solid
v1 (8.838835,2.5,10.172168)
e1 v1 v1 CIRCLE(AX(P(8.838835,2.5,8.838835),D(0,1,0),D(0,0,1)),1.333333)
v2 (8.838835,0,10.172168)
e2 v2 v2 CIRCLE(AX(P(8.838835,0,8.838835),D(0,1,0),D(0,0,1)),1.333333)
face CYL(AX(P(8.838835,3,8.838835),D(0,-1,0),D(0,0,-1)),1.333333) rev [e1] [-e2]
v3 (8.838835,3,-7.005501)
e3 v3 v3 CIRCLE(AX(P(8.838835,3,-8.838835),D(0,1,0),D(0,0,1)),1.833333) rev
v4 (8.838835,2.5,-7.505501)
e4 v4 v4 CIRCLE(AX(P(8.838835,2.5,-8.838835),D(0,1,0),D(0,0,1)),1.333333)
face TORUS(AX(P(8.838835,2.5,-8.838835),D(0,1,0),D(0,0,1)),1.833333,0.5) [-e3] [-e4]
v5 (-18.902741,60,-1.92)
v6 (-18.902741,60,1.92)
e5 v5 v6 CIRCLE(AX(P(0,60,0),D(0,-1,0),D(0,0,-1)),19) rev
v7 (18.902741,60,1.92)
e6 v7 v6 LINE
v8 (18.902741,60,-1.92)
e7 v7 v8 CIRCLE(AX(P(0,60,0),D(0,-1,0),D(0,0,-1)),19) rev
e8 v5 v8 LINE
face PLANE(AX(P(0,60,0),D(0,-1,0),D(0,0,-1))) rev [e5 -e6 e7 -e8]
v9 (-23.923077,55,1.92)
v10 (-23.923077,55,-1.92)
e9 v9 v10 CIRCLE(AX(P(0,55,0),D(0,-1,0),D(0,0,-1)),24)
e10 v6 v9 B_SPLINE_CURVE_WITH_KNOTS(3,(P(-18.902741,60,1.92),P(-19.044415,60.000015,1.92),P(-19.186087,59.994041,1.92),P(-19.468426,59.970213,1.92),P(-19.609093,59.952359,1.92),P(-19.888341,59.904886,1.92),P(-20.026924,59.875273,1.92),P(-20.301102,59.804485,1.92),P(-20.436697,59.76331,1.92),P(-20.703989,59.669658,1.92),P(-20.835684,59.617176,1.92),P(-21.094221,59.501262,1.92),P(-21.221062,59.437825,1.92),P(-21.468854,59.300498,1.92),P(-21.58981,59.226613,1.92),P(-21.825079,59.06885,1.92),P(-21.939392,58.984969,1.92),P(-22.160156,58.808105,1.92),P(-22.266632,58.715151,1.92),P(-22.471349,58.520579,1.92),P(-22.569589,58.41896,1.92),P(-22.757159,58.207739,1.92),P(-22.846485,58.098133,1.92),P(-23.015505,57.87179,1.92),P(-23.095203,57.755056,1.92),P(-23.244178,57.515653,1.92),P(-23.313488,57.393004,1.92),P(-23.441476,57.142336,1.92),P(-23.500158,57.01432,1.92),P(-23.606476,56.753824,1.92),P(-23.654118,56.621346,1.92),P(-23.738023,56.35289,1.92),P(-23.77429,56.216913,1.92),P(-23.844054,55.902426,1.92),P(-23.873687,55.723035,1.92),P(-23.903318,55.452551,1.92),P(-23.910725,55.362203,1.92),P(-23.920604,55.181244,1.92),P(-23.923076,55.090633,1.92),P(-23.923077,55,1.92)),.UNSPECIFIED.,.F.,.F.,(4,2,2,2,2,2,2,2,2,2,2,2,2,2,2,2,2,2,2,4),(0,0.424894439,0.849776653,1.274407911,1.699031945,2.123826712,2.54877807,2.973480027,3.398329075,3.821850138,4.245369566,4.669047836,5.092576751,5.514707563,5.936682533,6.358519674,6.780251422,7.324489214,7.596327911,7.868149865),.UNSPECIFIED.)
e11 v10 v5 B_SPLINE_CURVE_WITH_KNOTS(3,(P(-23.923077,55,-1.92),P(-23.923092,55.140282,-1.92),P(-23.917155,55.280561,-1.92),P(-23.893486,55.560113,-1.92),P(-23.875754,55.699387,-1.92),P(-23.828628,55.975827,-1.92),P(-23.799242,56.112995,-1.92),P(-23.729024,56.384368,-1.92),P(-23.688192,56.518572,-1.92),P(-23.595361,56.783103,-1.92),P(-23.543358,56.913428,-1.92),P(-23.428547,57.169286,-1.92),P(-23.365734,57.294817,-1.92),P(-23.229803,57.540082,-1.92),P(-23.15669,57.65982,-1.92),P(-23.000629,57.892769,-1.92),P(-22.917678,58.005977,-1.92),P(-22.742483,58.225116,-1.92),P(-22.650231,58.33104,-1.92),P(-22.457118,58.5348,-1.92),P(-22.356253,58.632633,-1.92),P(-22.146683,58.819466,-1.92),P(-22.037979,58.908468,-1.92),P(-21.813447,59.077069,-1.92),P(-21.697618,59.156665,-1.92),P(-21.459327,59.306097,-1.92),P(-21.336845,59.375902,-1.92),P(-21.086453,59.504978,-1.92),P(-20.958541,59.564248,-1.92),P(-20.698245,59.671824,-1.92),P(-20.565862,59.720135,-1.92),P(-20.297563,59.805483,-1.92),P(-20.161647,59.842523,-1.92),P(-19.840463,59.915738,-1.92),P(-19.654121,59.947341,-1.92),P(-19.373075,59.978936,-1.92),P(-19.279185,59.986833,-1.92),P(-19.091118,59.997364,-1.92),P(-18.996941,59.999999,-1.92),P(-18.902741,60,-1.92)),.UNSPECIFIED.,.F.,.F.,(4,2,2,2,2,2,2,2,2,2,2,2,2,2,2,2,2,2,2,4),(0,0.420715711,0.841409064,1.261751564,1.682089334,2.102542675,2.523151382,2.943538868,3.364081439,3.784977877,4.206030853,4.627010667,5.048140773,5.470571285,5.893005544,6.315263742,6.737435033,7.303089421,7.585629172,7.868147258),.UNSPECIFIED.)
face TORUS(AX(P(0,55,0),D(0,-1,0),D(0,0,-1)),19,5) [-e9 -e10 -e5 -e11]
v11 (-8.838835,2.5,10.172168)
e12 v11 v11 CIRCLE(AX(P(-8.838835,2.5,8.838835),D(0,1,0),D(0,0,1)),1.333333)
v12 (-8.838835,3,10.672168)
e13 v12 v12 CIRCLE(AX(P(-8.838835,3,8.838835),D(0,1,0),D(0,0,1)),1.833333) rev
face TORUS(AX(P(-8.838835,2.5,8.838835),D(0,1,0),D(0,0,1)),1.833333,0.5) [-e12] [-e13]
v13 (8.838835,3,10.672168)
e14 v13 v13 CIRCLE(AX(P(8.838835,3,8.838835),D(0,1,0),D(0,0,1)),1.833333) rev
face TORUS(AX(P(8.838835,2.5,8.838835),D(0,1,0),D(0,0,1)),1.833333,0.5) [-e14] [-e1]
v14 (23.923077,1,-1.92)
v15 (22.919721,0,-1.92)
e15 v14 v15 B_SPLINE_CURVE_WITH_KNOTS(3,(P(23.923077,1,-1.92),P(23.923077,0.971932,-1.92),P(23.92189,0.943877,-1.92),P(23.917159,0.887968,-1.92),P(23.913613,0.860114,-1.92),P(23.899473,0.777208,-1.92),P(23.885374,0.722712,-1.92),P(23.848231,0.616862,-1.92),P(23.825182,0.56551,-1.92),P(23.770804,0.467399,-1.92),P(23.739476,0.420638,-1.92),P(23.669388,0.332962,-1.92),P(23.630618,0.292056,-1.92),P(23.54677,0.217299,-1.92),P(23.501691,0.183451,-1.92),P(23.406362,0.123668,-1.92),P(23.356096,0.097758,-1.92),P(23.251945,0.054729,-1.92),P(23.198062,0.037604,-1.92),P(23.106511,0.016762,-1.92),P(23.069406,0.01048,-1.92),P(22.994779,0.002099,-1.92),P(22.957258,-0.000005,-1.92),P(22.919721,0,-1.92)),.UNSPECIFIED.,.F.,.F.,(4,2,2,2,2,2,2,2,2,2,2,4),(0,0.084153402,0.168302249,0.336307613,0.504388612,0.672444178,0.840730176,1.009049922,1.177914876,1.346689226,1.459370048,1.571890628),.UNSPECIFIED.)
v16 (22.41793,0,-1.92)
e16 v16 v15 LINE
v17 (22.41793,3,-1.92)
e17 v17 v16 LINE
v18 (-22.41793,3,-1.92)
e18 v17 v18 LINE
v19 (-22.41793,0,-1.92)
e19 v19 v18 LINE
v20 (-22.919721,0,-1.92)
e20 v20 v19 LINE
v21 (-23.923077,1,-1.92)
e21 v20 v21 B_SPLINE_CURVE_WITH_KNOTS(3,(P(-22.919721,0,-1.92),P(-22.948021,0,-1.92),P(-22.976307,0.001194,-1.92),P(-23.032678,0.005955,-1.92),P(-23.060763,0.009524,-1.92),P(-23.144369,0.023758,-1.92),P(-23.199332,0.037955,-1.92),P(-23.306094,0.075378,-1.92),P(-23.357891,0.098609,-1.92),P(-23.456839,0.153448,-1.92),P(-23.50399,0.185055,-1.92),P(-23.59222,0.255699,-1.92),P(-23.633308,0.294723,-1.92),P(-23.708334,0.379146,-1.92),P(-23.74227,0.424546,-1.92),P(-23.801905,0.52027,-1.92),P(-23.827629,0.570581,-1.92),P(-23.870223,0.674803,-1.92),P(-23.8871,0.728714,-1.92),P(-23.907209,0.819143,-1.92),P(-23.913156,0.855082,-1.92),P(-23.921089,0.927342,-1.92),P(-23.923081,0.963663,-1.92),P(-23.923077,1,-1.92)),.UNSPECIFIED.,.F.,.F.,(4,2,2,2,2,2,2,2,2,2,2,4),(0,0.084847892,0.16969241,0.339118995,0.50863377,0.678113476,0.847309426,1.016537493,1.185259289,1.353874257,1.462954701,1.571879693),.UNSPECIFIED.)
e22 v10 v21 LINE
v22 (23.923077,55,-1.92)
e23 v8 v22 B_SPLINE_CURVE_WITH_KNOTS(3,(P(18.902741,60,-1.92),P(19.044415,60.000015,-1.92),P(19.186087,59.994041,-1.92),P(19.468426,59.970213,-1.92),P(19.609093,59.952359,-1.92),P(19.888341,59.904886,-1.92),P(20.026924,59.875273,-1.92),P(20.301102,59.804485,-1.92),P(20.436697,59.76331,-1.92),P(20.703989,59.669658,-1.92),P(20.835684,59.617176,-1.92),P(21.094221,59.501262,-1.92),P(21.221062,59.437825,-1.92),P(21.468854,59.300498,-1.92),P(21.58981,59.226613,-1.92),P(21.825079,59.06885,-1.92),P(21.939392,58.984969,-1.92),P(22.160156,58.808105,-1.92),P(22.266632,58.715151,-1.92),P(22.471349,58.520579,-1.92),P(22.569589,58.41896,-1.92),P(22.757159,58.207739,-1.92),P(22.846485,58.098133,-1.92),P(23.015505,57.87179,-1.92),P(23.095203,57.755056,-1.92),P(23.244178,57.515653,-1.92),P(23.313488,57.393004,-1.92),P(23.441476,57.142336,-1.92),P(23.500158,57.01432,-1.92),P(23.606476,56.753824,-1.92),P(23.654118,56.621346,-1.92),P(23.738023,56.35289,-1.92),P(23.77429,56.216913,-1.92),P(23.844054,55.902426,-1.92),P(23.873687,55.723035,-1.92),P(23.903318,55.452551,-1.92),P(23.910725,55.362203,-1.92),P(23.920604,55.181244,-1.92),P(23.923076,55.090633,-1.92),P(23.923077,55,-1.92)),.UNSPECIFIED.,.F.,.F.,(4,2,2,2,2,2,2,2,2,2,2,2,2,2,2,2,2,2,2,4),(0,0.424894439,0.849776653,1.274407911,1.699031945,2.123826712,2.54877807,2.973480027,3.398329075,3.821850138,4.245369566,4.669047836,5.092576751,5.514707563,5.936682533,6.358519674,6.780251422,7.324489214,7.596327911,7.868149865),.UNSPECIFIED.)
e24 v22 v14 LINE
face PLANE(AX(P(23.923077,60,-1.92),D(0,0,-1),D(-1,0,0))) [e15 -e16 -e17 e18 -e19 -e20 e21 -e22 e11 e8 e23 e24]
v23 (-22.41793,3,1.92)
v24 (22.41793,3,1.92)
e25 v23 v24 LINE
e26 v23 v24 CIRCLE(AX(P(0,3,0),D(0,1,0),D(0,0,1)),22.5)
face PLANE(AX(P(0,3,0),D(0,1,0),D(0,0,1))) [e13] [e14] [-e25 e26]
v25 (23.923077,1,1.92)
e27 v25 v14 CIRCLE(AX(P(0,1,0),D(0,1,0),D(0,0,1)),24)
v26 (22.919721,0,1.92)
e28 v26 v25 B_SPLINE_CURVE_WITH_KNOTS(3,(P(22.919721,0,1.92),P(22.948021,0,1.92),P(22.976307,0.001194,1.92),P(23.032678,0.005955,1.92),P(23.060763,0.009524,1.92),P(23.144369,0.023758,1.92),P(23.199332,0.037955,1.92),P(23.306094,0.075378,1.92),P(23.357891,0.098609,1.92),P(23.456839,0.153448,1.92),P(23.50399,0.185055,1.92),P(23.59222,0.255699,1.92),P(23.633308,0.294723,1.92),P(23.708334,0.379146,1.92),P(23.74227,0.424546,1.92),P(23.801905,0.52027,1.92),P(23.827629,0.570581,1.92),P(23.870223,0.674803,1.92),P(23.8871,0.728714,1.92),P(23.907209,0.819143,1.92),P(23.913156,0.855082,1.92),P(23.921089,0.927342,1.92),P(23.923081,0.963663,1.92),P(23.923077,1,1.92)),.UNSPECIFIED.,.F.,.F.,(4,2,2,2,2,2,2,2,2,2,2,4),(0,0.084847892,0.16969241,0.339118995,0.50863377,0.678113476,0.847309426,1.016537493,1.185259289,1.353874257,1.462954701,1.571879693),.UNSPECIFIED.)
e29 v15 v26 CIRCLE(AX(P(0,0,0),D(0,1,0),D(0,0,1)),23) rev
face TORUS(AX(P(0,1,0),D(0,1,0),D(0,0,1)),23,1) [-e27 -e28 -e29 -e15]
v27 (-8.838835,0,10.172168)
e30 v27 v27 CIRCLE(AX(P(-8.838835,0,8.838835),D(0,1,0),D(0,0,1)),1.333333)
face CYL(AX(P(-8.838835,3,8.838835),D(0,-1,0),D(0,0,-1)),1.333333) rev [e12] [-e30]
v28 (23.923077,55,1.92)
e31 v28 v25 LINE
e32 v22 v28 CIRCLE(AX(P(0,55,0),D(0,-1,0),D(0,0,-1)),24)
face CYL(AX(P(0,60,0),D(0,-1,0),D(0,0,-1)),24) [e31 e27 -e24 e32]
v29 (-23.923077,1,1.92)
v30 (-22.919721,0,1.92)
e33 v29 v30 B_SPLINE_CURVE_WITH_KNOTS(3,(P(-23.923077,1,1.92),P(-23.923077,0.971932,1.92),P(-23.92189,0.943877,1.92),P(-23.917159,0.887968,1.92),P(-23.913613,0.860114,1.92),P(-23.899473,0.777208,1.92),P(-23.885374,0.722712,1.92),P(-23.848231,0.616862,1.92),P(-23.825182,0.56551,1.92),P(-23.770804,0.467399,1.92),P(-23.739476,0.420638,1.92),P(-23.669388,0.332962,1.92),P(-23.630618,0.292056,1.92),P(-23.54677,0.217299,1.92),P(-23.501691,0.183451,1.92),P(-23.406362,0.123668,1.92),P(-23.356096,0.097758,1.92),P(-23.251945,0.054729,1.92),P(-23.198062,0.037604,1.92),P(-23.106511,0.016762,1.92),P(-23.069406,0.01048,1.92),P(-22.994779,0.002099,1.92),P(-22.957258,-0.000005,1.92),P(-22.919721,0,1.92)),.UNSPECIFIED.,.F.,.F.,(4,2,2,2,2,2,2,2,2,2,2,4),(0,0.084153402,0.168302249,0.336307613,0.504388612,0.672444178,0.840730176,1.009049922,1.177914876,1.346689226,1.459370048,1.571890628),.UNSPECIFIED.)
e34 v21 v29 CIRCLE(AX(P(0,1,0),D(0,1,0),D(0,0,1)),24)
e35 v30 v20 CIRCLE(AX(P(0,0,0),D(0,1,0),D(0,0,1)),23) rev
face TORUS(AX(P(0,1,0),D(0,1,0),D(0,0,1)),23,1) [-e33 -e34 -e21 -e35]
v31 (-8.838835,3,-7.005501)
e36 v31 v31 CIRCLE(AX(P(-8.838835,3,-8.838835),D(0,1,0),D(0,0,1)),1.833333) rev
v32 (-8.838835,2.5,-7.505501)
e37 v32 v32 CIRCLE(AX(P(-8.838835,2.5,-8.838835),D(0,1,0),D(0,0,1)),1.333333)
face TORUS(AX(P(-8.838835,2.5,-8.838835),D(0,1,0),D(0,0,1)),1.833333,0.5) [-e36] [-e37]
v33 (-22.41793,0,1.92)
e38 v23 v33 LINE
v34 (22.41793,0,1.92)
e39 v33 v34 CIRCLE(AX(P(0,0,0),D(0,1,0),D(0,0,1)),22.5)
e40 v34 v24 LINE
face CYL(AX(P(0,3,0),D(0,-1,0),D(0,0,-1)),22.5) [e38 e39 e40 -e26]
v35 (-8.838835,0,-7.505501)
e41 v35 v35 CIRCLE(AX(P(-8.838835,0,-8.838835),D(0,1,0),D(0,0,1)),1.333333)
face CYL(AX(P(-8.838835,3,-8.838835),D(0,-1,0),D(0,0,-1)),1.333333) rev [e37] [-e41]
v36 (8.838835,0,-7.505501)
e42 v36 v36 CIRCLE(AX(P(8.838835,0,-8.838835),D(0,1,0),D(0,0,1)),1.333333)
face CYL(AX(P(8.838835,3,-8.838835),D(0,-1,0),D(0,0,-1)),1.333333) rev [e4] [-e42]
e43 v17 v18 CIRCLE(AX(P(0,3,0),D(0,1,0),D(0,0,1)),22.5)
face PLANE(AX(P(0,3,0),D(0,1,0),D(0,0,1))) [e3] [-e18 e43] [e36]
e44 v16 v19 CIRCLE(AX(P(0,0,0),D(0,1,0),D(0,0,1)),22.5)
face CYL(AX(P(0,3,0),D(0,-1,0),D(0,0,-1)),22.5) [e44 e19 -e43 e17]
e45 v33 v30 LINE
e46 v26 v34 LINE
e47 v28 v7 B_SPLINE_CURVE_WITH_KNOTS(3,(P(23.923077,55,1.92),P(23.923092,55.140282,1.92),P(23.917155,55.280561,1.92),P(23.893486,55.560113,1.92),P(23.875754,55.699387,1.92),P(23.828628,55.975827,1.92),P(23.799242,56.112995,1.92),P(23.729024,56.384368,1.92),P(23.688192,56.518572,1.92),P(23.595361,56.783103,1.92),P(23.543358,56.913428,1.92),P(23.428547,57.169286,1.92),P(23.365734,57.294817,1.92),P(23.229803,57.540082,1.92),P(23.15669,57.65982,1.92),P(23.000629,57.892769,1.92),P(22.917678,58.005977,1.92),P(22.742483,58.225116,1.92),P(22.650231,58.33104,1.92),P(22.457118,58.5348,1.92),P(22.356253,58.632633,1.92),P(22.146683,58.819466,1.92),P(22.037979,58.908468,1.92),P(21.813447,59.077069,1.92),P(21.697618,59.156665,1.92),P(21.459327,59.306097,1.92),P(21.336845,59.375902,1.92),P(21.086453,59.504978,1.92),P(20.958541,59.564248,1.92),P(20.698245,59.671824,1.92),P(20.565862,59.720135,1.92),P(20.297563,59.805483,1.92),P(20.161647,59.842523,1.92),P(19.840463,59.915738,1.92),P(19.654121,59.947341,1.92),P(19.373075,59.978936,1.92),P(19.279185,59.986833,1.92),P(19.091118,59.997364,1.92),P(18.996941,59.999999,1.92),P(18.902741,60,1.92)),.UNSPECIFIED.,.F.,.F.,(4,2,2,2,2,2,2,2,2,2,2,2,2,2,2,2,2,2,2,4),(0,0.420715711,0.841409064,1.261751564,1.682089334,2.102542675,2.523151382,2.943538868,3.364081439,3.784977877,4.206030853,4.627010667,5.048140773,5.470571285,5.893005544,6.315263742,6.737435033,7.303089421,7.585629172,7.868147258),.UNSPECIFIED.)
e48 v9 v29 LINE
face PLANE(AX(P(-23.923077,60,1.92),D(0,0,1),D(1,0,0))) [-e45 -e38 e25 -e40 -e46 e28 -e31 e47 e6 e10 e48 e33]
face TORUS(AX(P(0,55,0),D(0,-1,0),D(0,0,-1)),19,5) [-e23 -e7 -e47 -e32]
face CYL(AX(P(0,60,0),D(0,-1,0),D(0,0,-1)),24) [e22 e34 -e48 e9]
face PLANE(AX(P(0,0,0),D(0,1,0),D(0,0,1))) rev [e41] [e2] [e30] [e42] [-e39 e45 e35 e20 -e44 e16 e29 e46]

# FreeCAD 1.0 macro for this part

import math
import FreeCAD as App
import Part
import Sketcher


def edges_at(feature, points):
    """Names of the edges that pass closest to the given points."""
    edges = feature.Shape.Edges
    near = lambda p: min(range(len(edges)), key=lambda i: edges[i].distToShape(Part.Vertex(*p))[0])
    return sorted({f"Edge{near(p) + 1}" for p in points})

doc = App.newDocument("Part")
body = doc.addObject("PartDesign::Body", "Body")

# Sketch on XZ plane
sketch1 = body.newObject("Sketcher::SketchObject", "Sketch")
sketch1.AttachmentSupport = (doc.getObject("XZ_Plane"), [""])
sketch1.MapMode = "FlatFace"
sketch1.addGeometry(Part.Circle(App.Vector(0, 0, 0), App.Vector(0, 0, 1), 22.5), False)
sketch1.addGeometry(Part.Circle(App.Vector(-8.838835, 8.838835, 0), App.Vector(0, 0, 1), 1.333333), False)
sketch1.addGeometry(Part.Circle(App.Vector(8.838835, 8.838835, 0), App.Vector(0, 0, 1), 1.333333), False)
sketch1.addGeometry(Part.Circle(App.Vector(-8.838835, -8.838835, 0), App.Vector(0, 0, 1), 1.333333), False)
sketch1.addGeometry(Part.Circle(App.Vector(8.838835, -8.838835, 0), App.Vector(0, 0, 1), 1.333333), False)
sketch1.addConstraint(Sketcher.Constraint("Coincident", 0, 3, -1, 1))
sketch1.addConstraint(Sketcher.Constraint("Equal", 1, 2))
sketch1.addConstraint(Sketcher.Constraint("Equal", 2, 3))
sketch1.addConstraint(Sketcher.Constraint("Equal", 3, 4))
sketch1.addConstraint(Sketcher.Constraint("Symmetric", 2, 3, 3, 3, -1, 1))
sketch1.addConstraint(Sketcher.Constraint("Symmetric", 1, 3, 4, 3, -1, 1))
sketch1.addConstraint(Sketcher.Constraint("Symmetric", 1, 3, 2, 3, -2))
sketch1.addConstraint(Sketcher.Constraint("Diameter", 0, 45.0))
sketch1.addConstraint(Sketcher.Constraint("Diameter", 1, 2.666667))
sketch1.addConstraint(Sketcher.Constraint("DistanceX", 1, 3, 2, 3, 17.67767))
sketch1.addConstraint(Sketcher.Constraint("DistanceY", 3, 3, 1, 3, 17.67767))
pad1 = body.newObject("PartDesign::Pad", "Pad")
pad1.Profile = sketch1
pad1.Length = 3
pad1.Reversed = True

# Sketch on XZ plane
sketch2 = body.newObject("Sketcher::SketchObject", "Sketch001")
sketch2.AttachmentSupport = (doc.getObject("XZ_Plane"), [""])
sketch2.MapMode = "FlatFace"
sketch2.addGeometry(Part.LineSegment(App.Vector(23.923077, 1.92, 0), App.Vector(-23.923077, 1.92, 0)), False)
sketch2.addGeometry(Part.ArcOfCircle(Part.Circle(App.Vector(0, 0, 0), App.Vector(0, 0, 1), 24), math.radians(175.411434), math.radians(184.588566)), False)
sketch2.addGeometry(Part.LineSegment(App.Vector(-23.923077, -1.92, 0), App.Vector(23.923077, -1.92, 0)), False)
sketch2.addGeometry(Part.ArcOfCircle(Part.Circle(App.Vector(0, 0, 0), App.Vector(0, 0, 1), 24), math.radians(-4.588566), math.radians(4.588566)), False)
sketch2.addConstraint(Sketcher.Constraint("Coincident", 0, 2, 1, 1))
sketch2.addConstraint(Sketcher.Constraint("Coincident", 1, 2, 2, 1))
sketch2.addConstraint(Sketcher.Constraint("Coincident", 2, 2, 3, 1))
sketch2.addConstraint(Sketcher.Constraint("Coincident", 3, 2, 0, 1))
sketch2.addConstraint(Sketcher.Constraint("Horizontal", 0))
sketch2.addConstraint(Sketcher.Constraint("Horizontal", 2))
sketch2.addConstraint(Sketcher.Constraint("Coincident", 1, 3, -1, 1))
sketch2.addConstraint(Sketcher.Constraint("Coincident", 3, 3, -1, 1))
sketch2.addConstraint(Sketcher.Constraint("Equal", 1, 3))
sketch2.addConstraint(Sketcher.Constraint("Vertical", 0, 2, 1, 2))
sketch2.addConstraint(Sketcher.Constraint("Radius", 1, 24.0))
sketch2.addConstraint(Sketcher.Constraint("DistanceY", -1, 1, 0, 2, 1.92))
pad2 = body.newObject("PartDesign::Pad", "Pad001")
pad2.Profile = sketch2
pad2.Length = 60
pad2.Reversed = True
doc.recompute()

fillet = body.newObject("PartDesign::Fillet", "Fillet")
fillet.Base = (pad2, edges_at(pad2, [
    (-10.172, 3, 8.839),
    (-10.172, 3, -8.839),
    (7.506, 3, -8.839),
    (7.506, 3, 8.839),
]))
fillet.Radius = 0.5
doc.recompute()

fillet2 = body.newObject("PartDesign::Fillet", "Fillet001")
fillet2.Base = (fillet, edges_at(fillet, [(24, 0, 0), (-24, 0, 0)]))
fillet2.Radius = 1
doc.recompute()

fillet3 = body.newObject("PartDesign::Fillet", "Fillet002")
fillet3.Base = (fillet2, edges_at(fillet2, [(-24, 60, 0), (24, 60, 0)]))
fillet3.Radius = 5

doc.recompute()
